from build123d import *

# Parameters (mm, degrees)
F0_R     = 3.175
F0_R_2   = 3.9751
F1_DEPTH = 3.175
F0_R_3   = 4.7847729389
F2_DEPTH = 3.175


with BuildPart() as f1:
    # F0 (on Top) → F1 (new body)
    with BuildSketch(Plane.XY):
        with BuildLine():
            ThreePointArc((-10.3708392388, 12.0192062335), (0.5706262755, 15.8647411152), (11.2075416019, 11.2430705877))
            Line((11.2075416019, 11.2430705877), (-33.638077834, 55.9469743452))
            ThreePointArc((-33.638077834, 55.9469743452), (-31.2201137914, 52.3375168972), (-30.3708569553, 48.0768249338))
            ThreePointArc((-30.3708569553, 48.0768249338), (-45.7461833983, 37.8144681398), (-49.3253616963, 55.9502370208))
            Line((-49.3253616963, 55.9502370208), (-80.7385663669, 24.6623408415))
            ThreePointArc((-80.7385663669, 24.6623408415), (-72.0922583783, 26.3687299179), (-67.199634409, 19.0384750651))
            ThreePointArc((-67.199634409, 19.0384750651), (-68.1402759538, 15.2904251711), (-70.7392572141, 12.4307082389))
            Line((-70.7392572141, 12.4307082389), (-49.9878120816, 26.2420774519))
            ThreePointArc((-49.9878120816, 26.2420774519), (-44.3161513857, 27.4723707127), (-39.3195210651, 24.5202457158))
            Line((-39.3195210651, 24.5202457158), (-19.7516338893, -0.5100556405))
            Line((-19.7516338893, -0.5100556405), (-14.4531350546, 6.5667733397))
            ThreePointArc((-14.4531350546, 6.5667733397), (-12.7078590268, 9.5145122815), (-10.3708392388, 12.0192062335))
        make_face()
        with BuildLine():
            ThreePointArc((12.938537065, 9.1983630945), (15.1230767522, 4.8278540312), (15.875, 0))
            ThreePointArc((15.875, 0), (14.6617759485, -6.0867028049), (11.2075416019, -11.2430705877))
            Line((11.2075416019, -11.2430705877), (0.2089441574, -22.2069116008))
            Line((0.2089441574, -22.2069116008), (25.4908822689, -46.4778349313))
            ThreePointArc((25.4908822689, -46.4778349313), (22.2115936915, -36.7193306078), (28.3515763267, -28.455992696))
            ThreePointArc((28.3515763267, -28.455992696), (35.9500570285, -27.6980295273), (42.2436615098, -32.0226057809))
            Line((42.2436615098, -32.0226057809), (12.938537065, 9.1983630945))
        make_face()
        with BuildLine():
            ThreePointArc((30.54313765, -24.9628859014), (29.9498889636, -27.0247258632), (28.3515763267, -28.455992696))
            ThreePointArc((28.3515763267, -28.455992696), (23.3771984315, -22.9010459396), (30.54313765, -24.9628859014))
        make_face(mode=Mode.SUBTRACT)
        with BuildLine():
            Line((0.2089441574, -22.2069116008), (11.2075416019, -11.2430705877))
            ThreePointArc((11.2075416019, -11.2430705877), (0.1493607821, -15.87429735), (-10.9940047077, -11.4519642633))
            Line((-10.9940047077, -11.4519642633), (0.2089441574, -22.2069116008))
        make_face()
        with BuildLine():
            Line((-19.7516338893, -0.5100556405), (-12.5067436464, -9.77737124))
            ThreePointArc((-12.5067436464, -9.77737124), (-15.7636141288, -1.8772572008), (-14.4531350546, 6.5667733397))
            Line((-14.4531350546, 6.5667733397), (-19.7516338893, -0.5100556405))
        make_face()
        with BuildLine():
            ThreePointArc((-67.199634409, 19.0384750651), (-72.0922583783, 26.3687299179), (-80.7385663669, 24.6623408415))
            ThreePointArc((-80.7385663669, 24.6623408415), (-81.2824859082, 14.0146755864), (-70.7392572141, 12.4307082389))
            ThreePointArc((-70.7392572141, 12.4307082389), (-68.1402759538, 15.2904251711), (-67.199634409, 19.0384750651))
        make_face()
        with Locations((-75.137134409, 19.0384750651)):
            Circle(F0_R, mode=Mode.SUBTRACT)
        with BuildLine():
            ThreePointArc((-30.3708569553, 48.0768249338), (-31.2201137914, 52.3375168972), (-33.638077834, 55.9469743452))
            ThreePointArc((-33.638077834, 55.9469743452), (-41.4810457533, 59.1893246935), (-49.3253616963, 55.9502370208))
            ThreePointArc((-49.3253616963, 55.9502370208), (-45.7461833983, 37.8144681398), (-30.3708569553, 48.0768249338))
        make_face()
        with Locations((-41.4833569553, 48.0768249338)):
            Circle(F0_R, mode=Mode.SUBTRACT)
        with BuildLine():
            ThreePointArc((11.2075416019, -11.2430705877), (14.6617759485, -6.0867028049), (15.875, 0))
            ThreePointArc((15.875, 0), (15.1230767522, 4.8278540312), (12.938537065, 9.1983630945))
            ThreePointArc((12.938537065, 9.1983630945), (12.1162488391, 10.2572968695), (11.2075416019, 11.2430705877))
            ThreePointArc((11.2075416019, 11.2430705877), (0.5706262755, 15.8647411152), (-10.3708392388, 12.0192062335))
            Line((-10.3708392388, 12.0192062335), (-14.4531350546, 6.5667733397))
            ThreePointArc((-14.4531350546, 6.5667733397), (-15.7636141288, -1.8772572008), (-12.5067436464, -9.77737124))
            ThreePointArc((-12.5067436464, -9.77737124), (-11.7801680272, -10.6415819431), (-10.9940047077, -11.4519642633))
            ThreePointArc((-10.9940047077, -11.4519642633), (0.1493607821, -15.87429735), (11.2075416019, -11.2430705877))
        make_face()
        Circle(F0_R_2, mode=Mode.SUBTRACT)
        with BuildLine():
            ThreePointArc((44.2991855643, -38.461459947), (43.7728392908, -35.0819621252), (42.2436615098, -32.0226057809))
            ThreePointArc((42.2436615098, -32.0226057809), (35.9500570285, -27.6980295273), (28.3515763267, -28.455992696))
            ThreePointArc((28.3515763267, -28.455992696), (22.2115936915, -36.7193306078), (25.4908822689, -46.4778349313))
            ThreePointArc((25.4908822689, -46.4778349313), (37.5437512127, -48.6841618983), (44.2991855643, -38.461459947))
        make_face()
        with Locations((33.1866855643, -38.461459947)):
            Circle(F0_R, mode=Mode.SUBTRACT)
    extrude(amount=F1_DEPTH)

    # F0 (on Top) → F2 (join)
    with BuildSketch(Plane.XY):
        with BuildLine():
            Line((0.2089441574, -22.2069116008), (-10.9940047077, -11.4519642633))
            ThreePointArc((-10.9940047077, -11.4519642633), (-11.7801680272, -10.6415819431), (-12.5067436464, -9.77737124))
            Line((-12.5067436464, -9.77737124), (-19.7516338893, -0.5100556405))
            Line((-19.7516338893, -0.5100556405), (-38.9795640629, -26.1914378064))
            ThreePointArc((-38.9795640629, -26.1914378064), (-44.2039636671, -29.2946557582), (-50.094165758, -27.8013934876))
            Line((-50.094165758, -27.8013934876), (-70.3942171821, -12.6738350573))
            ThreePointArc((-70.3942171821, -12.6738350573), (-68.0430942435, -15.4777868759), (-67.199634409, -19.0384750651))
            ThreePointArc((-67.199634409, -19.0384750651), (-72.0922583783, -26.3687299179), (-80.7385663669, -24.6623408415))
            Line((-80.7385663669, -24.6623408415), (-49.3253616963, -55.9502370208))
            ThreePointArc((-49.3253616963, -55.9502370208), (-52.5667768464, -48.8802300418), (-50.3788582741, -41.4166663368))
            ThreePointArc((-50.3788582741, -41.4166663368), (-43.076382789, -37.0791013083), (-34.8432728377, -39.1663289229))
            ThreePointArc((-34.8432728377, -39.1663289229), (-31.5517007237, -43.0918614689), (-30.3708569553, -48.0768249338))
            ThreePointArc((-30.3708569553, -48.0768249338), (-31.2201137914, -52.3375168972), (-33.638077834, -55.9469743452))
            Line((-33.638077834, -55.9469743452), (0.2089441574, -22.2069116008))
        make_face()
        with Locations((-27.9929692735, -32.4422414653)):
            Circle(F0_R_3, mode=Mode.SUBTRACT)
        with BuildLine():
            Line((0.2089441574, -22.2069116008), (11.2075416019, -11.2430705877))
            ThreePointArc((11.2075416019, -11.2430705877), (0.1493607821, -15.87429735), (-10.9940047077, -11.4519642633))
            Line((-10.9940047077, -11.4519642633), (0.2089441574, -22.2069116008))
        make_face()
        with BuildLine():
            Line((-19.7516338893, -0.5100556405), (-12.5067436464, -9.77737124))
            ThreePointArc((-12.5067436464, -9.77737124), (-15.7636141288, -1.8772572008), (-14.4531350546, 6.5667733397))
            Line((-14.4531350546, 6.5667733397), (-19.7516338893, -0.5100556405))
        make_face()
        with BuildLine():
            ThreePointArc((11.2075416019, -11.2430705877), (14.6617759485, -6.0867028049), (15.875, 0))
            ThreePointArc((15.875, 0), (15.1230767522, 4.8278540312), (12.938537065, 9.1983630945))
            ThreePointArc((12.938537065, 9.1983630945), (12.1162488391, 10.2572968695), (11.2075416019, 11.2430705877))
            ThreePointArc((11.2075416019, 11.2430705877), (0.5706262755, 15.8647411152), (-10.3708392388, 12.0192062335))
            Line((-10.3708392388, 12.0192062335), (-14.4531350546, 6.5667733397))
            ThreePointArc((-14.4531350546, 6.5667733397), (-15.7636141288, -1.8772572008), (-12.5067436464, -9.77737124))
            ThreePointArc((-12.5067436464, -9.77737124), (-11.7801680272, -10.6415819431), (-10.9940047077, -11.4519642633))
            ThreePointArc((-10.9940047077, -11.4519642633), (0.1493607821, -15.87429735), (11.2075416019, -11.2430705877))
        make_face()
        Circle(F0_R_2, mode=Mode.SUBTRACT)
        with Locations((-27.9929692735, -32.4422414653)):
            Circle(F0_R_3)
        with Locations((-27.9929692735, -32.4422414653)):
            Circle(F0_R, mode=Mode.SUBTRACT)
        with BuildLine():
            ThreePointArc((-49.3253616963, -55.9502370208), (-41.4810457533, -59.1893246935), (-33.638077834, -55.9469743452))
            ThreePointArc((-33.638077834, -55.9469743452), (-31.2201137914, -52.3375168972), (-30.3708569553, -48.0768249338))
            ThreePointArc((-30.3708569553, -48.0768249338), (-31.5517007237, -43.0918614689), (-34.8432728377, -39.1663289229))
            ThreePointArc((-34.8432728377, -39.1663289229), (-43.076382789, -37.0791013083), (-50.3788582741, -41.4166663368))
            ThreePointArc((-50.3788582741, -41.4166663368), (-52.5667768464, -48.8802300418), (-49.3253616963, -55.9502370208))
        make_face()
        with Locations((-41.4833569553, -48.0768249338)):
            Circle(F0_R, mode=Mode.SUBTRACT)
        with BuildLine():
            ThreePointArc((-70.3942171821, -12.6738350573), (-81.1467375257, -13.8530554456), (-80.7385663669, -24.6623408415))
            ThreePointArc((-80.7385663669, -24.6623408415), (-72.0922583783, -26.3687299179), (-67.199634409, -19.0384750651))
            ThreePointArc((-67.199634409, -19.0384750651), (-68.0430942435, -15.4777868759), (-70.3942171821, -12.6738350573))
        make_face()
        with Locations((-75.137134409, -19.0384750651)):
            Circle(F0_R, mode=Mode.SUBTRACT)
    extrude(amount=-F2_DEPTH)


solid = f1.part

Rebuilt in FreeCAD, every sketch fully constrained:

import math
import FreeCAD as App
import Part
import Sketcher
Q = App.Units.Quantity

doc = App.newDocument("Part")
body = doc.addObject("PartDesign::Body", "Body")

# Sketch on XY plane
sketch1 = body.newObject("Sketcher::SketchObject", "Sketch")
sketch1.AttachmentSupport = (doc.getObject("XY_Plane"), [""])
sketch1.MapMode = "FlatFace"
sketch1.addGeometry(Part.LineSegment(App.Vector(0.2, -22.2, 0), App.Vector(25.5, -46.5, 0)), False)
sketch1.addGeometry(Part.ArcOfCircle(Part.Circle(App.Vector(33.2, -38.5, 0), App.Vector(0, 0, 1), 11.1), math.radians(-134), math.radians(0)), False)
sketch1.addGeometry(Part.ArcOfCircle(Part.Circle(App.Vector(33.2, -38.5, 0), App.Vector(0, 0, 1), 11.1), math.radians(0), math.radians(35)), False)
sketch1.addGeometry(Part.LineSegment(App.Vector(42.2, -32, 0), App.Vector(12.9, 9.2, 0)), False)
sketch1.addGeometry(Part.ArcOfCircle(Part.Circle(App.Vector(0, 0, 0), App.Vector(0, 0, 1), 15.9), math.radians(35.41), math.radians(45.09)), False)
sketch1.addGeometry(Part.LineSegment(App.Vector(11.2, 11.2, 0), App.Vector(-33.6, 55.9, 0)), False)
sketch1.addGeometry(Part.ArcOfCircle(Part.Circle(App.Vector(-41.5, 48.1, 0), App.Vector(0, 0, 1), 11.1), math.radians(45), math.radians(135)), False)
sketch1.addGeometry(Part.LineSegment(App.Vector(-49.3, 56, 0), App.Vector(-80.7, 24.7, 0)), False)
sketch1.addGeometry(Part.ArcOfCircle(Part.Circle(App.Vector(-75.1, 19, 0), App.Vector(0, 0, 1), 7.9), math.radians(135), math.radians(304)), False)
sketch1.addGeometry(Part.LineSegment(App.Vector(-70.7, 12.4, 0), App.Vector(-50, 26.2, 0)), False)
sketch1.addGeometry(Part.ArcOfCircle(Part.Circle(App.Vector(-45.6, 19.6, 0), App.Vector(0, 0, 1), 8), math.radians(38), math.radians(124)), False)
sketch1.addGeometry(Part.LineSegment(App.Vector(-39.3, 24.5, 0), App.Vector(-19.8, -0.5, 0)), False)
sketch1.addGeometry(Part.LineSegment(App.Vector(-19.8, -0.5, 0), App.Vector(-12.5, -9.8, 0)), False)
sketch1.addGeometry(Part.ArcOfCircle(Part.Circle(App.Vector(0, 0, 0), App.Vector(0, 0, 1), 15.9), math.radians(-141.98), math.radians(-133.83)), False)
sketch1.addGeometry(Part.LineSegment(App.Vector(-11, -11.5, 0), App.Vector(0.2, -22.2, 0)), False)
sketch1.addGeometry(Part.Circle(App.Vector(33.2, -38.5, 0), App.Vector(0, 0, 1), 3.2), False)
sketch1.addGeometry(Part.ArcOfCircle(Part.Circle(App.Vector(26.7, -25, 0), App.Vector(0, 0, 1), 3.9), math.radians(-64), math.radians(0)), False)
sketch1.addGeometry(Part.ArcOfCircle(Part.Circle(App.Vector(26.7, -25, 0), App.Vector(0, 0, 1), 3.9), math.radians(0), math.radians(296)), False)
sketch1.addGeometry(Part.Circle(App.Vector(0, 0, 0), App.Vector(0, 0, 1), 4), False)
sketch1.addGeometry(Part.Circle(App.Vector(-75.1, 19, 0), App.Vector(0, 0, 1), 3.2), False)
sketch1.addGeometry(Part.Circle(App.Vector(-41.5, 48.1, 0), App.Vector(0, 0, 1), 3.2), False)
sketch1.addGeometry(Part.ArcOfCircle(Part.Circle(App.Vector(0, 0, 0), App.Vector(0, 0, 1), 15.9), math.radians(131), math.radians(156)), False)
sketch1.addGeometry(Part.LineSegment(App.Vector(-10.4, 12, 0), App.Vector(-14.5, 6.6, 0)), False)
sketch1.addConstraint(Sketcher.Constraint("Tangent", 0, 2, 1, 1))
sketch1.addConstraint(Sketcher.Constraint("Tangent", 1, 2, 2, 1))
sketch1.addConstraint(Sketcher.Constraint("Tangent", 2, 2, 3, 1))
sketch1.addConstraint(Sketcher.Constraint("Tangent", 3, 2, 4, 1))
sketch1.addConstraint(Sketcher.Constraint("Tangent", 4, 2, 5, 1))
sketch1.addConstraint(Sketcher.Constraint("Tangent", 5, 2, 6, 1))
sketch1.addConstraint(Sketcher.Constraint("Tangent", 6, 2, 7, 1))
sketch1.addConstraint(Sketcher.Constraint("Tangent", 7, 2, 8, 1))
sketch1.addConstraint(Sketcher.Constraint("Tangent", 8, 2, 9, 1))
sketch1.addConstraint(Sketcher.Constraint("Tangent", 9, 2, 10, 2))
sketch1.addConstraint(Sketcher.Constraint("Tangent", 10, 1, 11, 1))
sketch1.addConstraint(Sketcher.Constraint("Coincident", 11, 2, 12, 1))
sketch1.addConstraint(Sketcher.Constraint("Tangent", 12, 2, 13, 1))
sketch1.addConstraint(Sketcher.Constraint("Tangent", 13, 2, 14, 1))
sketch1.addConstraint(Sketcher.Constraint("Coincident", 14, 2, 0, 1))
sketch1.addConstraint(Sketcher.Constraint("Tangent", 16, 1, 17, 2))
sketch1.addConstraint(Sketcher.Constraint("Coincident", 17, 1, 16, 2))
sketch1.addConstraint(Sketcher.Constraint("Coincident", 21, 1, 22, 1))
sketch1.addConstraint(Sketcher.Constraint("Coincident", 22, 2, 21, 2))
sketch1.addConstraint(Sketcher.Constraint("Coincident", 4, 3, -1, 1))
sketch1.addConstraint(Sketcher.Constraint("Coincident", 13, 3, -1, 1))
sketch1.addConstraint(Sketcher.Constraint("Coincident", 18, 3, -1, 1))
sketch1.addConstraint(Sketcher.Constraint("Coincident", 21, 3, -1, 1))
sketch1.addConstraint(Sketcher.Constraint("Coincident", 15, 3, 1, 3))
sketch1.addConstraint(Sketcher.Constraint("Coincident", 19, 3, 8, 3))
sketch1.addConstraint(Sketcher.Constraint("Coincident", 20, 3, 6, 3))
sketch1.addConstraint(Sketcher.Constraint("Equal", 1, 2))
sketch1.addConstraint(Sketcher.Constraint("Equal", 2, 6))
sketch1.addConstraint(Sketcher.Constraint("Equal", 4, 13))
sketch1.addConstraint(Sketcher.Constraint("Equal", 15, 19))
sketch1.addConstraint(Sketcher.Constraint("Equal", 19, 20))
sketch1.addConstraint(Sketcher.Constraint("Equal", 13, 21))
sketch1.addConstraint(Sketcher.Constraint("Parallel", 11, 12))
sketch1.addConstraint(Sketcher.Constraint("Parallel", 0, 14))
sketch1.addConstraint(Sketcher.Constraint("Horizontal", 15, 3, 1, 2))
sketch1.addConstraint(Sketcher.Constraint("Horizontal", 16, 3, 17, 1))
sketch1.addConstraint(Sketcher.Constraint("Diameter", 15, Q("0.25 in")))
sketch1.addConstraint(Sketcher.Constraint("Diameter", 18, Q("0.313 in")))
sketch1.addConstraint(Sketcher.Constraint("Radius", 1, Q("0.4375 in")))
sketch1.addConstraint(Sketcher.Constraint("Radius", 4, Q("0.625 in")))
sketch1.addConstraint(Sketcher.Constraint("Radius", 8, Q("0.3125 in")))
sketch1.addConstraint(Sketcher.Constraint("Radius", 10, Q("0.313 in")))
sketch1.addConstraint(Sketcher.Constraint("Radius", 16, 3.879594))
sketch1.addConstraint(Sketcher.Constraint("DistanceX", 10, 3, -1, 1, 45.582898))
sketch1.addConstraint(Sketcher.Constraint("DistanceY", 2, 3, 10, 3, 58.085198))
sketch1.addConstraint(Sketcher.Constraint("DistanceY", 8, 3, 5, 2, 36.908499))
sketch1.addConstraint(Sketcher.Constraint("DistanceY", 10, 3, 6, 2, 36.326499))
sketch1.addConstraint(Sketcher.Constraint("DistanceX", 8, 2, 6, 3, 29.2559))
sketch1.addConstraint(Sketcher.Constraint("DistanceY", 11, 2, 10, 1, 25.030301))
sketch1.addConstraint(Sketcher.Constraint("DistanceX", 11, 2, 22, 2, 5.298499))
sketch1.addConstraint(Sketcher.Constraint("Distance", 14, 15.529809))
sketch1.addConstraint(Sketcher.Constraint("DistanceY", 1, 3, -1, 1, 38.46146))
sketch1.addConstraint(Sketcher.Constraint("DistanceX", -1, 1, 2, 2, 42.243662))
sketch1.addConstraint(Sketcher.Constraint("DistanceX", -1, 1, 4, 2, 11.207542))
sketch1.addConstraint(Sketcher.Constraint("DistanceX", 21, 1, -1, 1, 10.370839))
sketch1.addConstraint(Sketcher.Constraint("DistanceX", 16, 3, 2, 3, 6.523142))
sketch1.addConstraint(Sketcher.Constraint("DistanceY", 0, 2, 16, 3, 21.514949))
sketch1.addConstraint(Sketcher.Constraint("DistanceX", 16, 1, 2, 3, 4.835109))
pad1 = body.newObject("PartDesign::Pad", "Pad")
pad1.Profile = sketch1
pad1.Length = Q("0.125 in")

# Sketch on XY plane
sketch2 = body.newObject("Sketcher::SketchObject", "Sketch001")
sketch2.AttachmentSupport = (doc.getObject("XY_Plane"), [""])
sketch2.MapMode = "FlatFace"
sketch2.addGeometry(Part.LineSegment(App.Vector(-33.6, -55.9, 0), App.Vector(0.2, -22.2, 0)), False)
sketch2.addGeometry(Part.LineSegment(App.Vector(0.2, -22.2, 0), App.Vector(11.2, -11.2, 0)), False)
sketch2.addGeometry(Part.ArcOfCircle(Part.Circle(App.Vector(0, 0, 0), App.Vector(0, 0, 1), 15.9), math.radians(-45), math.radians(0)), False)
sketch2.addGeometry(Part.ArcOfCircle(Part.Circle(App.Vector(0, 0, 0), App.Vector(0, 0, 1), 15.9), math.radians(0), math.radians(35)), False)
sketch2.addGeometry(Part.ArcOfCircle(Part.Circle(App.Vector(0, 0, 0), App.Vector(0, 0, 1), 15.9), math.radians(35.41), math.radians(45.09)), False)
sketch2.addGeometry(Part.ArcOfCircle(Part.Circle(App.Vector(0, 0, 0), App.Vector(0, 0, 1), 15.9), math.radians(45), math.radians(131)), False)
sketch2.addGeometry(Part.LineSegment(App.Vector(-10.4, 12, 0), App.Vector(-14.5, 6.6, 0)), False)
sketch2.addGeometry(Part.LineSegment(App.Vector(-14.5, 6.6, 0), App.Vector(-19.8, -0.5, 0)), False)
sketch2.addGeometry(Part.LineSegment(App.Vector(-19.8, -0.5, 0), App.Vector(-39, -26.2, 0)), False)
sketch2.addGeometry(Part.ArcOfCircle(Part.Circle(App.Vector(-45.3, -21.4, 0), App.Vector(0, 0, 1), 8), math.radians(-127), math.radians(-37)), False)
sketch2.addGeometry(Part.LineSegment(App.Vector(-50.1, -27.8, 0), App.Vector(-70.4, -12.7, 0)), False)
sketch2.addGeometry(Part.ArcOfCircle(Part.Circle(App.Vector(-75.1, -19, 0), App.Vector(0, 0, 1), 7.9), math.radians(53), math.radians(225)), False)
sketch2.addGeometry(Part.LineSegment(App.Vector(-80.7, -24.7, 0), App.Vector(-49.3, -56, 0)), False)
sketch2.addGeometry(Part.ArcOfCircle(Part.Circle(App.Vector(-41.5, -48.1, 0), App.Vector(0, 0, 1), 11.1), math.radians(-135), math.radians(-45)), False)
sketch2.addGeometry(Part.Circle(App.Vector(-41.5, -48.1, 0), App.Vector(0, 0, 1), 3.2), False)
sketch2.addGeometry(Part.Circle(App.Vector(-28, -32.4, 0), App.Vector(0, 0, 1), 3.2), False)
sketch2.addGeometry(Part.Circle(App.Vector(-75.1, -19, 0), App.Vector(0, 0, 1), 3.2), False)
sketch2.addGeometry(Part.Circle(App.Vector(0, 0, 0), App.Vector(0, 0, 1), 4), False)
sketch2.addConstraint(Sketcher.Constraint("Coincident", 0, 2, 1, 1))
sketch2.addConstraint(Sketcher.Constraint("Tangent", 1, 2, 2, 1))
sketch2.addConstraint(Sketcher.Constraint("Tangent", 2, 2, 3, 1))
sketch2.addConstraint(Sketcher.Constraint("Tangent", 3, 2, 4, 1))
sketch2.addConstraint(Sketcher.Constraint("Tangent", 4, 2, 5, 1))
sketch2.addConstraint(Sketcher.Constraint("Coincident", 5, 2, 6, 1))
sketch2.addConstraint(Sketcher.Constraint("Coincident", 6, 2, 7, 1))
sketch2.addConstraint(Sketcher.Constraint("Coincident", 7, 2, 8, 1))
sketch2.addConstraint(Sketcher.Constraint("Tangent", 8, 2, 9, 2))
sketch2.addConstraint(Sketcher.Constraint("Tangent", 9, 1, 10, 1))
sketch2.addConstraint(Sketcher.Constraint("Tangent", 10, 2, 11, 1))
sketch2.addConstraint(Sketcher.Constraint("Tangent", 11, 2, 12, 1))
sketch2.addConstraint(Sketcher.Constraint("Tangent", 12, 2, 13, 1))
sketch2.addConstraint(Sketcher.Constraint("Tangent", 13, 2, 0, 1))
sketch2.addConstraint(Sketcher.Constraint("Coincident", 2, 3, -1, 1))
sketch2.addConstraint(Sketcher.Constraint("Coincident", 4, 3, -1, 1))
sketch2.addConstraint(Sketcher.Constraint("Coincident", 17, 3, -1, 1))
sketch2.addConstraint(Sketcher.Constraint("Coincident", 14, 3, 13, 3))
sketch2.addConstraint(Sketcher.Constraint("Coincident", 16, 3, 11, 3))
sketch2.addConstraint(Sketcher.Constraint("Equal", 4, 5))
sketch2.addConstraint(Sketcher.Constraint("Equal", 14, 15))
sketch2.addConstraint(Sketcher.Constraint("Equal", 15, 16))
sketch2.addConstraint(Sketcher.Constraint("PointOnObject", 2, 2, -1))
sketch2.addConstraint(Sketcher.Constraint("Parallel", 0, 1))
sketch2.addConstraint(Sketcher.Constraint("Parallel", 6, 7))
sketch2.addConstraint(Sketcher.Constraint("Parallel", 7, 8))
sketch2.addConstraint(Sketcher.Constraint("Vertical", 1, 2, 4, 2))
sketch2.addConstraint(Sketcher.Constraint("Diameter", 14, Q("0.25 in")))
sketch2.addConstraint(Sketcher.Constraint("Diameter", 17, Q("0.313 in")))
sketch2.addConstraint(Sketcher.Constraint("Radius", 2, Q("0.625 in")))
sketch2.addConstraint(Sketcher.Constraint("Radius", 9, Q("0.313 in")))
sketch2.addConstraint(Sketcher.Constraint("Radius", 11, Q("0.3125 in")))
sketch2.addConstraint(Sketcher.Constraint("Radius", 13, Q("0.4375 in")))
sketch2.addConstraint(Sketcher.Constraint("DistanceX", 7, 2, 6, 2, 5.298499))
sketch2.addConstraint(Sketcher.Constraint("DistanceX", 9, 1, 8, 2, 11.114602))
sketch2.addConstraint(Sketcher.Constraint("DistanceX", 11, 2, 9, 1, 30.644401))
sketch2.addConstraint(Sketcher.Constraint("DistanceY", 12, 2, 8, 2, 29.758799))
sketch2.addConstraint(Sketcher.Constraint("Distance", 1, 15.529809))
sketch2.addConstraint(Sketcher.Constraint("DistanceX", 9, 3, -1, 1, 45.34366))
sketch2.addConstraint(Sketcher.Constraint("DistanceY", 9, 3, -1, 1, 21.42657))
sketch2.addConstraint(Sketcher.Constraint("DistanceX", 15, 3, -1, 1, 27.992969))
sketch2.addConstraint(Sketcher.Constraint("DistanceY", 15, 3, -1, 1, 32.442241))
sketch2.addConstraint(Sketcher.Constraint("DistanceX", -1, 1, 1, 2, 11.207542))
sketch2.addConstraint(Sketcher.Constraint("DistanceX", 5, 2, -1, 1, 10.370839))
sketch2.addConstraint(Sketcher.Constraint("DistanceY", 7, 2, 5, 2, 12.529262))
sketch2.addConstraint(Sketcher.Constraint("DistanceX", -1, 1, 3, 2, 12.938537))
pad2 = body.newObject("PartDesign::Pad", "Pad001")
pad2.Profile = sketch2
pad2.Length = Q("0.125 in")
pad2.Reversed = True

doc.recompute()
